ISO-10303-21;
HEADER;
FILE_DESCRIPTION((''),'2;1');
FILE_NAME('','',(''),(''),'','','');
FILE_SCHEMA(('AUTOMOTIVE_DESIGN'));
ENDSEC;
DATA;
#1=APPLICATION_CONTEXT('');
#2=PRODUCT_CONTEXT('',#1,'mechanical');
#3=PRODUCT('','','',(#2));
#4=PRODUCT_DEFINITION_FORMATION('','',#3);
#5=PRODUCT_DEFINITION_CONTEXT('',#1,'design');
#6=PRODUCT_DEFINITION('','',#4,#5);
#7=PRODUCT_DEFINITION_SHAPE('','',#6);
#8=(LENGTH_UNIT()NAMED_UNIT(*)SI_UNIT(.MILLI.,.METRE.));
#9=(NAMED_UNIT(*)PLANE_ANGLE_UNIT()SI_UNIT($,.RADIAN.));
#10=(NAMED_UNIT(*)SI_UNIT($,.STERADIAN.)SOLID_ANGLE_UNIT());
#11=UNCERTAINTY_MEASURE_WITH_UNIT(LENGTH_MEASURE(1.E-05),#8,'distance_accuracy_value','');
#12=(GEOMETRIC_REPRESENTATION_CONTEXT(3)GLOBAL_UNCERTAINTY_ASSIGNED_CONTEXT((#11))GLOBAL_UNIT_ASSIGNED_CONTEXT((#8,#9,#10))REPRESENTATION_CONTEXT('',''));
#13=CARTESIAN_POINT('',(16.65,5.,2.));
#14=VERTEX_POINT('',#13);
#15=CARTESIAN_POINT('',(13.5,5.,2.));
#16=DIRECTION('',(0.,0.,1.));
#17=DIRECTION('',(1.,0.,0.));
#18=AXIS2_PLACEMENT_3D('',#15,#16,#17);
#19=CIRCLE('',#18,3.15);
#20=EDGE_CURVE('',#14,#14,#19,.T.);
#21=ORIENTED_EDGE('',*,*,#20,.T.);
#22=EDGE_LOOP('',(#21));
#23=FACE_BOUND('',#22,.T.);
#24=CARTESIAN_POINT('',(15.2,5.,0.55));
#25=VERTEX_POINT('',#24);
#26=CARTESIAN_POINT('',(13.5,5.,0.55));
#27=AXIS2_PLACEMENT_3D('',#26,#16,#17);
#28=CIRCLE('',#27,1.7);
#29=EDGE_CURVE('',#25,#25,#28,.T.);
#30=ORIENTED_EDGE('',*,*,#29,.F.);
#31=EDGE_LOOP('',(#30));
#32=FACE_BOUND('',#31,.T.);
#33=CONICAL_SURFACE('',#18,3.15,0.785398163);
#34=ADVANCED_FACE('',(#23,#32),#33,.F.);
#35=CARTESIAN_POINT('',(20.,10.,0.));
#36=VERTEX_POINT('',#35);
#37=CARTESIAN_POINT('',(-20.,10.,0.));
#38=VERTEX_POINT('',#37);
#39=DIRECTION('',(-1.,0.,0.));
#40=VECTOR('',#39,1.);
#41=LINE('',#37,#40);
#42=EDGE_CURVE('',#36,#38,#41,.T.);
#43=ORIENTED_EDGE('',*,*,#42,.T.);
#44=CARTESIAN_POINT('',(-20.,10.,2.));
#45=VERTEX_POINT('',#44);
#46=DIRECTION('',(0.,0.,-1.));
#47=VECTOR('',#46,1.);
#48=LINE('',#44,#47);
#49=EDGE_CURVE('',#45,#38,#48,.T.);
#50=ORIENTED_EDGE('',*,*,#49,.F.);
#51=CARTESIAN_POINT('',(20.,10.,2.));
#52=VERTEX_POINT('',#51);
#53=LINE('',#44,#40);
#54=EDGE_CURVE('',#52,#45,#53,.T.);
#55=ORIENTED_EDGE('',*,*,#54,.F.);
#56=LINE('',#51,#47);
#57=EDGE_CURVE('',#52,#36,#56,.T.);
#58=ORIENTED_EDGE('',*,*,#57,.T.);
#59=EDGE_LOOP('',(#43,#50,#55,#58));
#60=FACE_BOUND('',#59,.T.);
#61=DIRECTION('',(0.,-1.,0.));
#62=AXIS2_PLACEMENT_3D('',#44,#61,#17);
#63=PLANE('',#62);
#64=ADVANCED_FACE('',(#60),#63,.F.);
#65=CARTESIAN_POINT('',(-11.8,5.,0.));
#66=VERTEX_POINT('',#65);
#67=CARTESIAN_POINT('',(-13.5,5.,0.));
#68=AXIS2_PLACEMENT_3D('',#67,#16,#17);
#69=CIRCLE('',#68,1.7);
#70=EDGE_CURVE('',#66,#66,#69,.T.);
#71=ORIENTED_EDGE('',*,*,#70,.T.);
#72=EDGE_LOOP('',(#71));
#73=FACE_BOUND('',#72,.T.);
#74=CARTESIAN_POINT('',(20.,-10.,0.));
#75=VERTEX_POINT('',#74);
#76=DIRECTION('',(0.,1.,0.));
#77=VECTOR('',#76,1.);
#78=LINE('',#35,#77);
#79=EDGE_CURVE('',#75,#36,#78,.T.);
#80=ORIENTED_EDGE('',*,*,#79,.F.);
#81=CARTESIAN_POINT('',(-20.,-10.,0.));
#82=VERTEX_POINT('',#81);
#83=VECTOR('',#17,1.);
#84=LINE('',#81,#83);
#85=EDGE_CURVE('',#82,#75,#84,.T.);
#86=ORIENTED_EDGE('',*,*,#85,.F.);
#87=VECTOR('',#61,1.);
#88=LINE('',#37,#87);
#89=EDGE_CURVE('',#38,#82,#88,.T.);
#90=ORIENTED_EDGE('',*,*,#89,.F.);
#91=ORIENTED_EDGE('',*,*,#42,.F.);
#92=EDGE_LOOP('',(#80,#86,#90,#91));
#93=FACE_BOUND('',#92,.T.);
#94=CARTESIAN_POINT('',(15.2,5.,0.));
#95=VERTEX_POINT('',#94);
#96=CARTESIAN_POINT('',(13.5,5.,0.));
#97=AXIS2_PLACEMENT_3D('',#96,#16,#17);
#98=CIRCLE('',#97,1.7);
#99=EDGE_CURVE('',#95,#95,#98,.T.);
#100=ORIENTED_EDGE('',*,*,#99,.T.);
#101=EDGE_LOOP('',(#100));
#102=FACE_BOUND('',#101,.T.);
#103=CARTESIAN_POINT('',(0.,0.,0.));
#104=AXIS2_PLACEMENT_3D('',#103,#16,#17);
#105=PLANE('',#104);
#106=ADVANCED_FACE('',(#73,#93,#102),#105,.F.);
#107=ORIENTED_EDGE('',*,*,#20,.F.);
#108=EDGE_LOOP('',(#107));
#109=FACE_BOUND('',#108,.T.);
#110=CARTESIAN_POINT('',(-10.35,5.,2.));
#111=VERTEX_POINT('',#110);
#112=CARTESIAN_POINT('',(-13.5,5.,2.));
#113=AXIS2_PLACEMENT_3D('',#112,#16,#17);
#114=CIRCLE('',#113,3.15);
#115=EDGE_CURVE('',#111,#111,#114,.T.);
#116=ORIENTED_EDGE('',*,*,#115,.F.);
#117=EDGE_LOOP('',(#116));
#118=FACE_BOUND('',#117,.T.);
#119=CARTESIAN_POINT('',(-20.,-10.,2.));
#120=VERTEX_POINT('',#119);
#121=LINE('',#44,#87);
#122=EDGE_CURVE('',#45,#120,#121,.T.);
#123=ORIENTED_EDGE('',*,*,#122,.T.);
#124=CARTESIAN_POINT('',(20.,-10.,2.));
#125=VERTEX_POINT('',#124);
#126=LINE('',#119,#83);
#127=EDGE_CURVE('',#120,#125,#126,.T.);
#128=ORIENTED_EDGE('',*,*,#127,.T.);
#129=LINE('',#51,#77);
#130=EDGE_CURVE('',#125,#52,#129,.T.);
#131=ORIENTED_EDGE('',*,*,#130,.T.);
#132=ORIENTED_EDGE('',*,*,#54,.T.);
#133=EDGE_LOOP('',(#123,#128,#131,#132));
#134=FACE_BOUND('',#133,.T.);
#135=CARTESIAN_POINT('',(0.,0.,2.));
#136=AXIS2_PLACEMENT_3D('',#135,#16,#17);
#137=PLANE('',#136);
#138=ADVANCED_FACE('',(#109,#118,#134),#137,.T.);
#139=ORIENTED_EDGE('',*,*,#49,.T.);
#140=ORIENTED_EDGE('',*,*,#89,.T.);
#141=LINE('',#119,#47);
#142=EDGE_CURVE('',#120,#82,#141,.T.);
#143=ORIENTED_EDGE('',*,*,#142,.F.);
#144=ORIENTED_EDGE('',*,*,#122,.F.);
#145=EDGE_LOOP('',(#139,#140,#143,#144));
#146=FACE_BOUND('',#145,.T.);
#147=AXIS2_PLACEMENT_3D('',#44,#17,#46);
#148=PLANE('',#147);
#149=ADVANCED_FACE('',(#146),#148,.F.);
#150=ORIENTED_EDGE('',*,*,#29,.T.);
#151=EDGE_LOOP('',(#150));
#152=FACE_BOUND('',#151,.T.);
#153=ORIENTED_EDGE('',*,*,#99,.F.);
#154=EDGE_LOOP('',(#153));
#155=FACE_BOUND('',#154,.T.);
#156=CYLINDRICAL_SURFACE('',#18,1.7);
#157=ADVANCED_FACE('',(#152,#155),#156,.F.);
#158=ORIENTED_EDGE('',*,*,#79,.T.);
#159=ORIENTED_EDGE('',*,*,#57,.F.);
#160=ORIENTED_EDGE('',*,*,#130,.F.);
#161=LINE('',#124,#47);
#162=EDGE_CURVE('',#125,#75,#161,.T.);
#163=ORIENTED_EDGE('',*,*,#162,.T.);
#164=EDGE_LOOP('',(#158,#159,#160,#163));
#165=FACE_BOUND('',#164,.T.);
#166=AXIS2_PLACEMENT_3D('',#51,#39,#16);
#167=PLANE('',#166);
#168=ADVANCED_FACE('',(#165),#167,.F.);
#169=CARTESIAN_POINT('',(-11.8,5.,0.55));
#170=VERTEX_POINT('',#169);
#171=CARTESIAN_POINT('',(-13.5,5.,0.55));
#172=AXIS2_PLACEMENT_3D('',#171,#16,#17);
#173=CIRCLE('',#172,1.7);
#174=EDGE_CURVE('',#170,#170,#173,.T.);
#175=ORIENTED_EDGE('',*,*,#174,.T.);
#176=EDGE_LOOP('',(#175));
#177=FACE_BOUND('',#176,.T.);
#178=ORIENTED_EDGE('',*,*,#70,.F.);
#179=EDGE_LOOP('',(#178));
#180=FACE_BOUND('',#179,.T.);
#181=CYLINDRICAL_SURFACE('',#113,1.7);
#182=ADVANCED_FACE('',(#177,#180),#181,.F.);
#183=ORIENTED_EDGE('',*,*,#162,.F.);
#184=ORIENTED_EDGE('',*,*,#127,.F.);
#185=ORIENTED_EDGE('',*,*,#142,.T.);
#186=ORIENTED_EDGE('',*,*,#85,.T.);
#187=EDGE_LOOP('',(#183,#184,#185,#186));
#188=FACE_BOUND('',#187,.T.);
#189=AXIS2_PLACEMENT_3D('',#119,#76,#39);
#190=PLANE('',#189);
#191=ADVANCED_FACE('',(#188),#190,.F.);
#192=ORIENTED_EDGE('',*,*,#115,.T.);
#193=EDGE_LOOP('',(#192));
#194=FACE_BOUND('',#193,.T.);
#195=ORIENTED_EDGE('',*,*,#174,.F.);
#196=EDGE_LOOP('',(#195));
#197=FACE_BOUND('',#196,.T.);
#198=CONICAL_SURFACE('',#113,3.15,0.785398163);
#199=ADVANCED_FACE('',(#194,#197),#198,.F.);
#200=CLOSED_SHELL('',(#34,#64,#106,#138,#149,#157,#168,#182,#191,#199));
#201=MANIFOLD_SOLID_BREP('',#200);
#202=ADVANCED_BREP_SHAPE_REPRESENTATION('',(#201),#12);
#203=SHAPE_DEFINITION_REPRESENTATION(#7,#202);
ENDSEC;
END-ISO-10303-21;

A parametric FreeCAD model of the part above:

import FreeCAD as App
import Part
import Sketcher

V = App.Vector
Q = App.Units.Quantity

doc = App.newDocument("Part")
body = doc.addObject("PartDesign::Body", "Body")

# Sketch on XY plane
sketch1 = body.newObject("Sketcher::SketchObject", "Sketch")
sketch1.AttachmentSupport = (doc.getObject("XY_Plane"), [""])
sketch1.MapMode = "FlatFace"
sketch1.addGeometry(Part.LineSegment(V(-20, 10, 0), V(-20, -10, 0)), False)
sketch1.addGeometry(Part.LineSegment(V(-20, -10, 0), V(20, -10, 0)), False)
sketch1.addGeometry(Part.LineSegment(V(20, -10, 0), V(20, 10, 0)), False)
sketch1.addGeometry(Part.LineSegment(V(20, 10, 0), V(-20, 10, 0)), False)
sketch1.addConstraint(Sketcher.Constraint("Coincident", 0, 2, 1, 1))
sketch1.addConstraint(Sketcher.Constraint("Coincident", 1, 2, 2, 1))
sketch1.addConstraint(Sketcher.Constraint("Coincident", 2, 2, 3, 1))
sketch1.addConstraint(Sketcher.Constraint("Coincident", 3, 2, 0, 1))
sketch1.addConstraint(Sketcher.Constraint("Vertical", 0))
sketch1.addConstraint(Sketcher.Constraint("Horizontal", 1))
sketch1.addConstraint(Sketcher.Constraint("Vertical", 2))
sketch1.addConstraint(Sketcher.Constraint("Horizontal", 3))
sketch1.addConstraint(Sketcher.Constraint("Symmetric", 0, 2, 2, 2, -1, 1))
sketch1.addConstraint(Sketcher.Constraint("DistanceX", 1, 1, 1, 2, Q("40 mm")))
sketch1.addConstraint(Sketcher.Constraint("DistanceY", 0, 2, 0, 1, Q("20 mm")))
pad1 = body.newObject("PartDesign::Pad", "Pad")
pad1.Profile = sketch1
pad1.Length = 2

# Sketch on YZ plane
sketch2 = body.newObject("Sketcher::SketchObject", "Sketch001")
sketch2.AttachmentSupport = (doc.getObject("YZ_Plane"), [""])
sketch2.MapMode = "FlatFace"
sketch2.AttachmentOffset = App.Placement(V(0, 0, -13.5), App.Rotation())
sketch2.addGeometry(Part.LineSegment(V(5, 0, 0), V(5, 2, 0)), False)
sketch2.addGeometry(Part.LineSegment(V(5, 2, 0), V(1.9, 2, 0)), False)
sketch2.addGeometry(Part.LineSegment(V(1.9, 2, 0), V(3.3, 0.6, 0)), False)
sketch2.addGeometry(Part.LineSegment(V(3.3, 0.6, 0), V(3.3, 0, 0)), False)
sketch2.addGeometry(Part.LineSegment(V(3.3, 0, 0), V(5, 0, 0)), False)
sketch2.addGeometry(Part.LineSegment(V(5, 2, 0), V(5, 0, 0)), True)  # axis
sketch2.addConstraint(Sketcher.Constraint("Coincident", 0, 2, 1, 1))
sketch2.addConstraint(Sketcher.Constraint("Coincident", 1, 2, 2, 1))
sketch2.addConstraint(Sketcher.Constraint("Coincident", 2, 2, 3, 1))
sketch2.addConstraint(Sketcher.Constraint("Coincident", 3, 2, 4, 1))
sketch2.addConstraint(Sketcher.Constraint("Coincident", 4, 2, 0, 1))
sketch2.addConstraint(Sketcher.Constraint("Vertical", 0))
sketch2.addConstraint(Sketcher.Constraint("Horizontal", 1))
sketch2.addConstraint(Sketcher.Constraint("Vertical", 3))
sketch2.addConstraint(Sketcher.Constraint("Horizontal", 4))
sketch2.addConstraint(Sketcher.Constraint("Vertical", 5))
sketch2.addConstraint(Sketcher.Constraint("Coincident", 5, 1, 0, 2))
sketch2.addConstraint(Sketcher.Constraint("PointOnObject", 3, 2, -1))
sketch2.addConstraint(Sketcher.Constraint("PointOnObject", 5, 2, -1))
sketch2.addConstraint(Sketcher.Constraint("DistanceY", 0, 1, 0, 2, Q("2 mm")))
sketch2.addConstraint(Sketcher.Constraint("Angle", 2, Q("-45 deg")))
sketch2.addConstraint(Sketcher.Constraint("DistanceX", 4, 1, 4, 2, Q("1.7 mm")))
sketch2.addConstraint(Sketcher.Constraint("DistanceX", -1, 1, 0, 2, Q("5 mm")))
sketch2.addConstraint(Sketcher.Constraint("DistanceX", 1, 2, 1, 1, Q("3.15 mm")))
groove = body.newObject("PartDesign::Groove", "Groove")
groove.Profile = sketch2
groove.ReferenceAxis = (sketch2, ["Axis0"])
groove.Angle = 360
doc.recompute()

linearpattern = body.newObject("PartDesign::LinearPattern", "LinearPattern")
linearpattern.Originals = [groove]
linearpattern.Direction = (doc.getObject("X_Axis"), [""])
linearpattern.Mode = "offset"
linearpattern.Offset = 27
linearpattern.Occurrences = 2
body.Tip = linearpattern

doc.recompute()
